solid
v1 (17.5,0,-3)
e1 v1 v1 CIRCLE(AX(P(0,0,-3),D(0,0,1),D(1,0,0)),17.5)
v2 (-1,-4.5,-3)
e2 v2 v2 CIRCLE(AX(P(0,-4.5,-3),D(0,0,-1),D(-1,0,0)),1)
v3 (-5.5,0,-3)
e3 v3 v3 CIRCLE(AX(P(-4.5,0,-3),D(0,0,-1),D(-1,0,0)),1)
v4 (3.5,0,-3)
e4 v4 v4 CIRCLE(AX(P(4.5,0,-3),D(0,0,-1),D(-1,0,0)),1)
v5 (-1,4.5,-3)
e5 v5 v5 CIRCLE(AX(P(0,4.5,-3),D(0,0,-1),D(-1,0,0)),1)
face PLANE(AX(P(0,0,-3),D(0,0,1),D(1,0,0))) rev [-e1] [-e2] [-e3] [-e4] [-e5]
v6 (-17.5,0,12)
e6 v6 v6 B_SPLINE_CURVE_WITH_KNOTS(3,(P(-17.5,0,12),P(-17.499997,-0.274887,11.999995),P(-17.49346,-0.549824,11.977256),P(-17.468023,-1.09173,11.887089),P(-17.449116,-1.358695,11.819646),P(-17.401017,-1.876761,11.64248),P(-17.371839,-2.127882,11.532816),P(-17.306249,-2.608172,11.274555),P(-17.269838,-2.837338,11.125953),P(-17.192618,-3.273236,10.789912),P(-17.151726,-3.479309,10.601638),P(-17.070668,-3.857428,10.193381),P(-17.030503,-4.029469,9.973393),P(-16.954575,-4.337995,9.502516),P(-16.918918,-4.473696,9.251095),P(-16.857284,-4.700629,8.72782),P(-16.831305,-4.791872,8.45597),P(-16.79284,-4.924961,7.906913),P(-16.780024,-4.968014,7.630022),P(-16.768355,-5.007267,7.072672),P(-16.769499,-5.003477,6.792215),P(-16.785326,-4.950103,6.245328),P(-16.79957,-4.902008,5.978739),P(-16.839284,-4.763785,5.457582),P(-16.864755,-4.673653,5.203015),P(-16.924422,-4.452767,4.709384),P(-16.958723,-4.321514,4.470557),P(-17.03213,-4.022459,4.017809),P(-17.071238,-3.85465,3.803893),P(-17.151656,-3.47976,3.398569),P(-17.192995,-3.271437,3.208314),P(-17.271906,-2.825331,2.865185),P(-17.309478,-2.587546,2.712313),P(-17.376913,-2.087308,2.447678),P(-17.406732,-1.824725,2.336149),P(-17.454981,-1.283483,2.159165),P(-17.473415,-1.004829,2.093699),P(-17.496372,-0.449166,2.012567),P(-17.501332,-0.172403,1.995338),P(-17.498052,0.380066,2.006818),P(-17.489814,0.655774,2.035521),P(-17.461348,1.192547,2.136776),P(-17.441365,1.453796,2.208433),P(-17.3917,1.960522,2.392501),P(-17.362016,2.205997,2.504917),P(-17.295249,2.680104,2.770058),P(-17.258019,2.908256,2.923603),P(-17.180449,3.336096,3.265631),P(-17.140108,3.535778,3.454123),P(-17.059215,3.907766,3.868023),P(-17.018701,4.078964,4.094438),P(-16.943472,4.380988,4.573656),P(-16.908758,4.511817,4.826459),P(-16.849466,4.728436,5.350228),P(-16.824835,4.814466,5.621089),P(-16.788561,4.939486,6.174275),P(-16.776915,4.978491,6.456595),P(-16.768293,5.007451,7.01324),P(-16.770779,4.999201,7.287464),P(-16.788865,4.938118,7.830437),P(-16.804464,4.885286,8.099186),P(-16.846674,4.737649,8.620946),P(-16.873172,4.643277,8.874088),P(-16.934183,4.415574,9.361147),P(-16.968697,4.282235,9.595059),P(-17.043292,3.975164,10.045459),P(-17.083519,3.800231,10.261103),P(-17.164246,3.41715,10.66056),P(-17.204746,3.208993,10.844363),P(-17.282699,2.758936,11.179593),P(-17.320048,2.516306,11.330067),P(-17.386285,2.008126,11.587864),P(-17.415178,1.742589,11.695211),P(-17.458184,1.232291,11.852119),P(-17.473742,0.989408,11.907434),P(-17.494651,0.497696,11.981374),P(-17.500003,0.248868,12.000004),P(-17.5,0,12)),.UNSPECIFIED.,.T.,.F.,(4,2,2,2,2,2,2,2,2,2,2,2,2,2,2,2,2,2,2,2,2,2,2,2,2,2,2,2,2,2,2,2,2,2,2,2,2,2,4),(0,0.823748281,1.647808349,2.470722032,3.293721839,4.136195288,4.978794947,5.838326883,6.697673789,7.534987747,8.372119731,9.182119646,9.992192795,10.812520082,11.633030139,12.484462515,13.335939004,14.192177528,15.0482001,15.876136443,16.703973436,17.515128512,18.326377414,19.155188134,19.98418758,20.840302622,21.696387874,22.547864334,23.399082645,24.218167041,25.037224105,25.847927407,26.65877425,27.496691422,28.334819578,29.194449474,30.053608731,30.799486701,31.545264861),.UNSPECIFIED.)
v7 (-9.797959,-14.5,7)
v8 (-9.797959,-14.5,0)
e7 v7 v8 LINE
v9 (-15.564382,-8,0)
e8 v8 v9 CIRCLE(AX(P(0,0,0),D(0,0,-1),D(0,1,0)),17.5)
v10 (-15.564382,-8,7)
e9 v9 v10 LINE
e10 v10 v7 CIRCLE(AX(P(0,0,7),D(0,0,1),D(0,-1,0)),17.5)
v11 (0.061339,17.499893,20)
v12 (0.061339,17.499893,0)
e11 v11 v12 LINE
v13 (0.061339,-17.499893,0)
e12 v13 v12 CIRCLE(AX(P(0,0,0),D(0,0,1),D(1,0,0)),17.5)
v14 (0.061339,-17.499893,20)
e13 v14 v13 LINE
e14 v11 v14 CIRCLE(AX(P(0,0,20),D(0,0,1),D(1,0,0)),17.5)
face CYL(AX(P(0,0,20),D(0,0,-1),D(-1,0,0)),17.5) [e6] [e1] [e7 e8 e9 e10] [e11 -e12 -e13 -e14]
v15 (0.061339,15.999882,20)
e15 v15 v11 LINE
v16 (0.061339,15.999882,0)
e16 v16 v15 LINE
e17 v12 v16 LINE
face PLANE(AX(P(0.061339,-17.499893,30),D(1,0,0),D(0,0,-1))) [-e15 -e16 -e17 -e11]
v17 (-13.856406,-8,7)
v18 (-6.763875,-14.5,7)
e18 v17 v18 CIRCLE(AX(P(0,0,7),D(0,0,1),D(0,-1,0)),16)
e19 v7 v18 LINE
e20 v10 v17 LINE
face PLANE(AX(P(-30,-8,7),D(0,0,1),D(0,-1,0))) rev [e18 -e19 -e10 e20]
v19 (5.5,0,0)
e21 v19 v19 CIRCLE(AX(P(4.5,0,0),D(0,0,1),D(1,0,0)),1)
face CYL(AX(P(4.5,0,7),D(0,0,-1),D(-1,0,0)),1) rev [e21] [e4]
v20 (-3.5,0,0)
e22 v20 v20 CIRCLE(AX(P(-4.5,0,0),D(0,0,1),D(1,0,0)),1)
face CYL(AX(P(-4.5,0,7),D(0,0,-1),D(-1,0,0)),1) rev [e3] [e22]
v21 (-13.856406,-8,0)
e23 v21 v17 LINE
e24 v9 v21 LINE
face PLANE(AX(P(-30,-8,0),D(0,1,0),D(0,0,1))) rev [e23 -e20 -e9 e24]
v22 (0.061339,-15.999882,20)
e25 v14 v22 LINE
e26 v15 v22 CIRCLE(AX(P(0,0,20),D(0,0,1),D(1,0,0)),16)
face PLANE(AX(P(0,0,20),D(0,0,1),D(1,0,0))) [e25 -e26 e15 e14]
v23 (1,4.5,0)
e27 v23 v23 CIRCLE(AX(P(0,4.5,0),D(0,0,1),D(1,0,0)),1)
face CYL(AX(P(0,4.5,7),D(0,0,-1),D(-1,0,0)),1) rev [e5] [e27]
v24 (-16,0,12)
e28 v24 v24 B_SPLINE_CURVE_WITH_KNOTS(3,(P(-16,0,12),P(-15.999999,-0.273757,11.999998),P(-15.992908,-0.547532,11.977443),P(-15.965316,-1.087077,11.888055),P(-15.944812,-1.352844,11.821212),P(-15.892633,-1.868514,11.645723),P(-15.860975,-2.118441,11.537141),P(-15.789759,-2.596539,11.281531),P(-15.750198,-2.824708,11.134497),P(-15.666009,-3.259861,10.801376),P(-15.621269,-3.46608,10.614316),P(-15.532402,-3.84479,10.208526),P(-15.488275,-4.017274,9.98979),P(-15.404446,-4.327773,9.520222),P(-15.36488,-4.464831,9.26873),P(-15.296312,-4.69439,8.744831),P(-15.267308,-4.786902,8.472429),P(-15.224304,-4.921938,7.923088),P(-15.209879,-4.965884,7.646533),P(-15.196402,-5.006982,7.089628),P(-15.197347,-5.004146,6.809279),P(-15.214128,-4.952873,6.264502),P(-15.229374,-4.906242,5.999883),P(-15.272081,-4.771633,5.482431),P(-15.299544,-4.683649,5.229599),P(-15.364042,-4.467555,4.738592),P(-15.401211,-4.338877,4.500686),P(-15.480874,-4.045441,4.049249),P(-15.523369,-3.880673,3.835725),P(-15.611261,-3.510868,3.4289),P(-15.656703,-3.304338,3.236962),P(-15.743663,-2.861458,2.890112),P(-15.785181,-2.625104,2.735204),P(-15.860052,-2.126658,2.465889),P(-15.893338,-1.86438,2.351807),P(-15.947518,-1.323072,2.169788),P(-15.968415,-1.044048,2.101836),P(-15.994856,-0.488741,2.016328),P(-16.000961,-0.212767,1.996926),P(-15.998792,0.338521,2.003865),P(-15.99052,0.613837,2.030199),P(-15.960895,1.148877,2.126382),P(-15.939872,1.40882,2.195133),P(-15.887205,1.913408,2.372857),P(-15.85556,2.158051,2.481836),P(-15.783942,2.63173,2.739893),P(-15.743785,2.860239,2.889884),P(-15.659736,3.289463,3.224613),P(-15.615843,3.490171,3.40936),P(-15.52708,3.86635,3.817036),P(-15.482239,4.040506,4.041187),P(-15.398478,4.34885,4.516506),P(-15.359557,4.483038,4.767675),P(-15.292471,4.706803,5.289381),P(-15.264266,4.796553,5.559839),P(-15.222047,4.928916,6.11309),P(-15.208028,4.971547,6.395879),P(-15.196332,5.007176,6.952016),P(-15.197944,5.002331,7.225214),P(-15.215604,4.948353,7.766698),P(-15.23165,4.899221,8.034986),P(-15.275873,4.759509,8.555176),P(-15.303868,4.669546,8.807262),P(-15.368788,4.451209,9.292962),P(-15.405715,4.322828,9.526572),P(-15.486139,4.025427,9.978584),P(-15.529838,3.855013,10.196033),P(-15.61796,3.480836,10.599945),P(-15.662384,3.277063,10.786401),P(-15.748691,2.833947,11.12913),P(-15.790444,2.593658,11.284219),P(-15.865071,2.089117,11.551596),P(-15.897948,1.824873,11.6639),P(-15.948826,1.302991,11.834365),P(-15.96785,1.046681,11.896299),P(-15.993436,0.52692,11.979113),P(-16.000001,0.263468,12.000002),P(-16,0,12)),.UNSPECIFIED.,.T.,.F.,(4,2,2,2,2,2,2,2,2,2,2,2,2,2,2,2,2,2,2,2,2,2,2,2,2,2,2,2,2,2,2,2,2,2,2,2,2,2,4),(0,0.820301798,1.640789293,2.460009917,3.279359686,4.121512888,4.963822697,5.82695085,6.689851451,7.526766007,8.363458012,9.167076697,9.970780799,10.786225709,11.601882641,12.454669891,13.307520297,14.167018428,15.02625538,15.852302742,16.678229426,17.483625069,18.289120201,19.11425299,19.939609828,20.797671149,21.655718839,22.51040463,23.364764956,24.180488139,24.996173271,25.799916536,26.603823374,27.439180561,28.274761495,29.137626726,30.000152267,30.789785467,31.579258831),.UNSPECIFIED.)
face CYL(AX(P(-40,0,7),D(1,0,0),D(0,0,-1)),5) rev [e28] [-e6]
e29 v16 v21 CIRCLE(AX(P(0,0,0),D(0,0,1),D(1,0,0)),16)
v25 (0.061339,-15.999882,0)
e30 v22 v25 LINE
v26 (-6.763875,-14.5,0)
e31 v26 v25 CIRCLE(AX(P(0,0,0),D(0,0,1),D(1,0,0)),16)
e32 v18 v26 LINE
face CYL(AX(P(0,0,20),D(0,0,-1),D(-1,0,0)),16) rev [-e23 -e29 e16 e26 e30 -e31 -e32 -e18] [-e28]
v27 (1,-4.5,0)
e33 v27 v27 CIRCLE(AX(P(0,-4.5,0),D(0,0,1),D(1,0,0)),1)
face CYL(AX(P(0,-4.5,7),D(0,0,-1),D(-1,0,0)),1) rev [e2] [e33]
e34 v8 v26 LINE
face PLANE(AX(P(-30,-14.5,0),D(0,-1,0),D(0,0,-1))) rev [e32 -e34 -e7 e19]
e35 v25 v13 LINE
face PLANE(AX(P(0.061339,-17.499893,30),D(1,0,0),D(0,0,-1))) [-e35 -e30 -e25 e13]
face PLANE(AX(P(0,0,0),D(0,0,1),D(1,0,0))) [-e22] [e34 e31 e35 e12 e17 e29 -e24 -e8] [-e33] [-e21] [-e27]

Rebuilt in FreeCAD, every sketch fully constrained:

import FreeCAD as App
import Part
import Sketcher
Q = App.Units.Quantity

doc = App.newDocument("Part")
body = doc.addObject("PartDesign::Body", "Body")

sketch1 = body.newObject("Sketcher::SketchObject", "Sketch")
sketch1.AttachmentSupport = (doc.getObject("XY_Plane"), [""])
sketch1.MapMode = "FlatFace"
sketch1.addGeometry([
    Part.Circle(App.Vector(0, 0, 0), App.Vector(0, 0, 1), 18),
    Part.Circle(App.Vector(0, 0, 0), App.Vector(0, 0, 1), 16),
], False)
sketch1.addConstraint([
    Sketcher.Constraint("Coincident", 0, 3, -1, 1),
    Sketcher.Constraint("Coincident", 1, 3, -1, 1),
    Sketcher.Constraint("Diameter", 0, Q("35 mm")),
    Sketcher.Constraint("Diameter", 1, Q("32 mm")),
])
pad1 = body.newObject("PartDesign::Pad", "Pad")
pad1.Profile = sketch1
pad1.Length = 20

sketch2 = body.newObject("Sketcher::SketchObject", "Sketch001")
sketch2.AttachmentSupport = (doc.getObject("XY_Plane"), [""])
sketch2.MapMode = "FlatFace"
sketch2.addGeometry(Part.Circle(App.Vector(0, 0, 0), App.Vector(0, 0, 1), 18), False)
sketch2.addConstraint([
    Sketcher.Constraint("Coincident", 0, 3, -1, 1),
    Sketcher.Constraint("Diameter", 0, Q("35 mm")),
])
pad2 = body.newObject("PartDesign::Pad", "Pad001")
pad2.Profile = sketch2
pad2.Length = 3
pad2.Reversed = True

sketch3 = body.newObject("Sketcher::SketchObject", "Sketch002")
sketch3.AttachmentSupport = (doc.getObject("YZ_Plane"), [""])
sketch3.MapMode = "FlatFace"
sketch3.addGeometry(Part.Circle(App.Vector(0, 7, 0), App.Vector(0, 0, 1), 5), False)
sketch3.addConstraint([
    Sketcher.Constraint("PointOnObject", 0, 3, -2),
    Sketcher.Constraint("Diameter", 0, Q("10 mm")),
    Sketcher.Constraint("DistanceY", -1, 1, 0, 3, Q("7 mm")),
])
pocket1 = body.newObject("PartDesign::Pocket", "Pocket")
pocket1.Profile = sketch3
pocket1.Length = 40

sketch4 = body.newObject("Sketcher::SketchObject", "Sketch003")
sketch4.AttachmentSupport = (doc.getObject("XY_Plane"), [""])
sketch4.MapMode = "FlatFace"
sketch4.AttachmentOffset = App.Placement(App.Vector(0, 0, -3), App.Rotation())
sketch4.addGeometry([
    Part.Circle(App.Vector(4.5, 0, 0), App.Vector(0, 0, 1), 1),
    Part.Circle(App.Vector(0, 4.5, 0), App.Vector(0, 0, 1), 1),
    Part.Circle(App.Vector(-4.5, 0, 0), App.Vector(0, 0, 1), 1),
    Part.Circle(App.Vector(0, -4.5, 0), App.Vector(0, 0, 1), 1),
], False)
sketch4.addConstraint([
    Sketcher.Constraint("Equal", 0, 1),
    Sketcher.Constraint("Equal", 1, 2),
    Sketcher.Constraint("Equal", 2, 3),
    Sketcher.Constraint("Symmetric", 0, 3, 2, 3, -1, 1),
    Sketcher.Constraint("Symmetric", 1, 3, 3, 3, -1, 1),
    Sketcher.Constraint("PointOnObject", 0, 3, -1),
    Sketcher.Constraint("PointOnObject", 1, 3, -2),
    Sketcher.Constraint("Diameter", 0, Q("2 mm")),
    Sketcher.Constraint("DistanceX", 2, 3, 0, 3, Q("9 mm")),
    Sketcher.Constraint("DistanceY", 3, 3, 1, 3, Q("9 mm")),
])
pocket2 = body.newObject("PartDesign::Pocket", "Pocket001")
pocket2.Profile = sketch4
pocket2.Length = 10
pocket2.Reversed = True

sketch5 = body.newObject("Sketcher::SketchObject", "Sketch004")
sketch5.AttachmentSupport = (doc.getObject("XY_Plane"), [""])
sketch5.MapMode = "FlatFace"
sketch5.addGeometry([
    Part.LineSegment(App.Vector(0, 17, 0), App.Vector(0, -17, 0)),
    Part.LineSegment(App.Vector(0, -17, 0), App.Vector(32, -17, 0)),
    Part.LineSegment(App.Vector(32, -17, 0), App.Vector(32, 17, 0)),
    Part.LineSegment(App.Vector(32, 17, 0), App.Vector(0, 17, 0)),
], False)
sketch5.addConstraint([
    Sketcher.Constraint("Coincident", 0, 2, 1, 1),
    Sketcher.Constraint("Coincident", 1, 2, 2, 1),
    Sketcher.Constraint("Coincident", 2, 2, 3, 1),
    Sketcher.Constraint("Coincident", 3, 2, 0, 1),
    Sketcher.Constraint("Vertical", 0),
    Sketcher.Constraint("Horizontal", 1),
    Sketcher.Constraint("Vertical", 2),
    Sketcher.Constraint("Horizontal", 3),
    Sketcher.Constraint("DistanceX", 1, 1, 1, 2, Q("31.877322 mm")),
    Sketcher.Constraint("DistanceY", 0, 2, 0, 1, Q("34.999785 mm")),
    Sketcher.Constraint("DistanceX", -1, 1, 0, 2, Q("0.061339 mm")),
    Sketcher.Constraint("DistanceY", 0, 2, -1, 1, Q("17.499893 mm")),
])
pocket3 = body.newObject("PartDesign::Pocket", "Pocket002")
pocket3.Profile = sketch5
pocket3.Length = 30
pocket3.Reversed = True

sketch6 = body.newObject("Sketcher::SketchObject", "Sketch005")
sketch6.AttachmentSupport = (doc.getObject("YZ_Plane"), [""])
sketch6.MapMode = "FlatFace"
sketch6.addGeometry([
    Part.LineSegment(App.Vector(-8, 7, 0), App.Vector(-14, 7, 0)),
    Part.LineSegment(App.Vector(-14, 7, 0), App.Vector(-14, 0, 0)),
    Part.LineSegment(App.Vector(-14, 0, 0), App.Vector(-8, 0, 0)),
    Part.LineSegment(App.Vector(-8, 0, 0), App.Vector(-8, 7, 0)),
], False)
sketch6.addConstraint([
    Sketcher.Constraint("Coincident", 0, 2, 1, 1),
    Sketcher.Constraint("Coincident", 1, 2, 2, 1),
    Sketcher.Constraint("Coincident", 2, 2, 3, 1),
    Sketcher.Constraint("Coincident", 3, 2, 0, 1),
    Sketcher.Constraint("Horizontal", 0),
    Sketcher.Constraint("Vertical", 1),
    Sketcher.Constraint("Horizontal", 2),
    Sketcher.Constraint("Vertical", 3),
    Sketcher.Constraint("PointOnObject", 1, 2, -1),
    Sketcher.Constraint("DistanceY", 1, 2, 1, 1, Q("7 mm")),
    Sketcher.Constraint("DistanceX", 0, 2, 0, 1, Q("6.5 mm")),
    Sketcher.Constraint("DistanceX", 2, 2, -1, 1, Q("8 mm")),
])
pocket4 = body.newObject("PartDesign::Pocket", "Pocket003")
pocket4.Profile = sketch6
pocket4.Length = 30

doc.recompute()
